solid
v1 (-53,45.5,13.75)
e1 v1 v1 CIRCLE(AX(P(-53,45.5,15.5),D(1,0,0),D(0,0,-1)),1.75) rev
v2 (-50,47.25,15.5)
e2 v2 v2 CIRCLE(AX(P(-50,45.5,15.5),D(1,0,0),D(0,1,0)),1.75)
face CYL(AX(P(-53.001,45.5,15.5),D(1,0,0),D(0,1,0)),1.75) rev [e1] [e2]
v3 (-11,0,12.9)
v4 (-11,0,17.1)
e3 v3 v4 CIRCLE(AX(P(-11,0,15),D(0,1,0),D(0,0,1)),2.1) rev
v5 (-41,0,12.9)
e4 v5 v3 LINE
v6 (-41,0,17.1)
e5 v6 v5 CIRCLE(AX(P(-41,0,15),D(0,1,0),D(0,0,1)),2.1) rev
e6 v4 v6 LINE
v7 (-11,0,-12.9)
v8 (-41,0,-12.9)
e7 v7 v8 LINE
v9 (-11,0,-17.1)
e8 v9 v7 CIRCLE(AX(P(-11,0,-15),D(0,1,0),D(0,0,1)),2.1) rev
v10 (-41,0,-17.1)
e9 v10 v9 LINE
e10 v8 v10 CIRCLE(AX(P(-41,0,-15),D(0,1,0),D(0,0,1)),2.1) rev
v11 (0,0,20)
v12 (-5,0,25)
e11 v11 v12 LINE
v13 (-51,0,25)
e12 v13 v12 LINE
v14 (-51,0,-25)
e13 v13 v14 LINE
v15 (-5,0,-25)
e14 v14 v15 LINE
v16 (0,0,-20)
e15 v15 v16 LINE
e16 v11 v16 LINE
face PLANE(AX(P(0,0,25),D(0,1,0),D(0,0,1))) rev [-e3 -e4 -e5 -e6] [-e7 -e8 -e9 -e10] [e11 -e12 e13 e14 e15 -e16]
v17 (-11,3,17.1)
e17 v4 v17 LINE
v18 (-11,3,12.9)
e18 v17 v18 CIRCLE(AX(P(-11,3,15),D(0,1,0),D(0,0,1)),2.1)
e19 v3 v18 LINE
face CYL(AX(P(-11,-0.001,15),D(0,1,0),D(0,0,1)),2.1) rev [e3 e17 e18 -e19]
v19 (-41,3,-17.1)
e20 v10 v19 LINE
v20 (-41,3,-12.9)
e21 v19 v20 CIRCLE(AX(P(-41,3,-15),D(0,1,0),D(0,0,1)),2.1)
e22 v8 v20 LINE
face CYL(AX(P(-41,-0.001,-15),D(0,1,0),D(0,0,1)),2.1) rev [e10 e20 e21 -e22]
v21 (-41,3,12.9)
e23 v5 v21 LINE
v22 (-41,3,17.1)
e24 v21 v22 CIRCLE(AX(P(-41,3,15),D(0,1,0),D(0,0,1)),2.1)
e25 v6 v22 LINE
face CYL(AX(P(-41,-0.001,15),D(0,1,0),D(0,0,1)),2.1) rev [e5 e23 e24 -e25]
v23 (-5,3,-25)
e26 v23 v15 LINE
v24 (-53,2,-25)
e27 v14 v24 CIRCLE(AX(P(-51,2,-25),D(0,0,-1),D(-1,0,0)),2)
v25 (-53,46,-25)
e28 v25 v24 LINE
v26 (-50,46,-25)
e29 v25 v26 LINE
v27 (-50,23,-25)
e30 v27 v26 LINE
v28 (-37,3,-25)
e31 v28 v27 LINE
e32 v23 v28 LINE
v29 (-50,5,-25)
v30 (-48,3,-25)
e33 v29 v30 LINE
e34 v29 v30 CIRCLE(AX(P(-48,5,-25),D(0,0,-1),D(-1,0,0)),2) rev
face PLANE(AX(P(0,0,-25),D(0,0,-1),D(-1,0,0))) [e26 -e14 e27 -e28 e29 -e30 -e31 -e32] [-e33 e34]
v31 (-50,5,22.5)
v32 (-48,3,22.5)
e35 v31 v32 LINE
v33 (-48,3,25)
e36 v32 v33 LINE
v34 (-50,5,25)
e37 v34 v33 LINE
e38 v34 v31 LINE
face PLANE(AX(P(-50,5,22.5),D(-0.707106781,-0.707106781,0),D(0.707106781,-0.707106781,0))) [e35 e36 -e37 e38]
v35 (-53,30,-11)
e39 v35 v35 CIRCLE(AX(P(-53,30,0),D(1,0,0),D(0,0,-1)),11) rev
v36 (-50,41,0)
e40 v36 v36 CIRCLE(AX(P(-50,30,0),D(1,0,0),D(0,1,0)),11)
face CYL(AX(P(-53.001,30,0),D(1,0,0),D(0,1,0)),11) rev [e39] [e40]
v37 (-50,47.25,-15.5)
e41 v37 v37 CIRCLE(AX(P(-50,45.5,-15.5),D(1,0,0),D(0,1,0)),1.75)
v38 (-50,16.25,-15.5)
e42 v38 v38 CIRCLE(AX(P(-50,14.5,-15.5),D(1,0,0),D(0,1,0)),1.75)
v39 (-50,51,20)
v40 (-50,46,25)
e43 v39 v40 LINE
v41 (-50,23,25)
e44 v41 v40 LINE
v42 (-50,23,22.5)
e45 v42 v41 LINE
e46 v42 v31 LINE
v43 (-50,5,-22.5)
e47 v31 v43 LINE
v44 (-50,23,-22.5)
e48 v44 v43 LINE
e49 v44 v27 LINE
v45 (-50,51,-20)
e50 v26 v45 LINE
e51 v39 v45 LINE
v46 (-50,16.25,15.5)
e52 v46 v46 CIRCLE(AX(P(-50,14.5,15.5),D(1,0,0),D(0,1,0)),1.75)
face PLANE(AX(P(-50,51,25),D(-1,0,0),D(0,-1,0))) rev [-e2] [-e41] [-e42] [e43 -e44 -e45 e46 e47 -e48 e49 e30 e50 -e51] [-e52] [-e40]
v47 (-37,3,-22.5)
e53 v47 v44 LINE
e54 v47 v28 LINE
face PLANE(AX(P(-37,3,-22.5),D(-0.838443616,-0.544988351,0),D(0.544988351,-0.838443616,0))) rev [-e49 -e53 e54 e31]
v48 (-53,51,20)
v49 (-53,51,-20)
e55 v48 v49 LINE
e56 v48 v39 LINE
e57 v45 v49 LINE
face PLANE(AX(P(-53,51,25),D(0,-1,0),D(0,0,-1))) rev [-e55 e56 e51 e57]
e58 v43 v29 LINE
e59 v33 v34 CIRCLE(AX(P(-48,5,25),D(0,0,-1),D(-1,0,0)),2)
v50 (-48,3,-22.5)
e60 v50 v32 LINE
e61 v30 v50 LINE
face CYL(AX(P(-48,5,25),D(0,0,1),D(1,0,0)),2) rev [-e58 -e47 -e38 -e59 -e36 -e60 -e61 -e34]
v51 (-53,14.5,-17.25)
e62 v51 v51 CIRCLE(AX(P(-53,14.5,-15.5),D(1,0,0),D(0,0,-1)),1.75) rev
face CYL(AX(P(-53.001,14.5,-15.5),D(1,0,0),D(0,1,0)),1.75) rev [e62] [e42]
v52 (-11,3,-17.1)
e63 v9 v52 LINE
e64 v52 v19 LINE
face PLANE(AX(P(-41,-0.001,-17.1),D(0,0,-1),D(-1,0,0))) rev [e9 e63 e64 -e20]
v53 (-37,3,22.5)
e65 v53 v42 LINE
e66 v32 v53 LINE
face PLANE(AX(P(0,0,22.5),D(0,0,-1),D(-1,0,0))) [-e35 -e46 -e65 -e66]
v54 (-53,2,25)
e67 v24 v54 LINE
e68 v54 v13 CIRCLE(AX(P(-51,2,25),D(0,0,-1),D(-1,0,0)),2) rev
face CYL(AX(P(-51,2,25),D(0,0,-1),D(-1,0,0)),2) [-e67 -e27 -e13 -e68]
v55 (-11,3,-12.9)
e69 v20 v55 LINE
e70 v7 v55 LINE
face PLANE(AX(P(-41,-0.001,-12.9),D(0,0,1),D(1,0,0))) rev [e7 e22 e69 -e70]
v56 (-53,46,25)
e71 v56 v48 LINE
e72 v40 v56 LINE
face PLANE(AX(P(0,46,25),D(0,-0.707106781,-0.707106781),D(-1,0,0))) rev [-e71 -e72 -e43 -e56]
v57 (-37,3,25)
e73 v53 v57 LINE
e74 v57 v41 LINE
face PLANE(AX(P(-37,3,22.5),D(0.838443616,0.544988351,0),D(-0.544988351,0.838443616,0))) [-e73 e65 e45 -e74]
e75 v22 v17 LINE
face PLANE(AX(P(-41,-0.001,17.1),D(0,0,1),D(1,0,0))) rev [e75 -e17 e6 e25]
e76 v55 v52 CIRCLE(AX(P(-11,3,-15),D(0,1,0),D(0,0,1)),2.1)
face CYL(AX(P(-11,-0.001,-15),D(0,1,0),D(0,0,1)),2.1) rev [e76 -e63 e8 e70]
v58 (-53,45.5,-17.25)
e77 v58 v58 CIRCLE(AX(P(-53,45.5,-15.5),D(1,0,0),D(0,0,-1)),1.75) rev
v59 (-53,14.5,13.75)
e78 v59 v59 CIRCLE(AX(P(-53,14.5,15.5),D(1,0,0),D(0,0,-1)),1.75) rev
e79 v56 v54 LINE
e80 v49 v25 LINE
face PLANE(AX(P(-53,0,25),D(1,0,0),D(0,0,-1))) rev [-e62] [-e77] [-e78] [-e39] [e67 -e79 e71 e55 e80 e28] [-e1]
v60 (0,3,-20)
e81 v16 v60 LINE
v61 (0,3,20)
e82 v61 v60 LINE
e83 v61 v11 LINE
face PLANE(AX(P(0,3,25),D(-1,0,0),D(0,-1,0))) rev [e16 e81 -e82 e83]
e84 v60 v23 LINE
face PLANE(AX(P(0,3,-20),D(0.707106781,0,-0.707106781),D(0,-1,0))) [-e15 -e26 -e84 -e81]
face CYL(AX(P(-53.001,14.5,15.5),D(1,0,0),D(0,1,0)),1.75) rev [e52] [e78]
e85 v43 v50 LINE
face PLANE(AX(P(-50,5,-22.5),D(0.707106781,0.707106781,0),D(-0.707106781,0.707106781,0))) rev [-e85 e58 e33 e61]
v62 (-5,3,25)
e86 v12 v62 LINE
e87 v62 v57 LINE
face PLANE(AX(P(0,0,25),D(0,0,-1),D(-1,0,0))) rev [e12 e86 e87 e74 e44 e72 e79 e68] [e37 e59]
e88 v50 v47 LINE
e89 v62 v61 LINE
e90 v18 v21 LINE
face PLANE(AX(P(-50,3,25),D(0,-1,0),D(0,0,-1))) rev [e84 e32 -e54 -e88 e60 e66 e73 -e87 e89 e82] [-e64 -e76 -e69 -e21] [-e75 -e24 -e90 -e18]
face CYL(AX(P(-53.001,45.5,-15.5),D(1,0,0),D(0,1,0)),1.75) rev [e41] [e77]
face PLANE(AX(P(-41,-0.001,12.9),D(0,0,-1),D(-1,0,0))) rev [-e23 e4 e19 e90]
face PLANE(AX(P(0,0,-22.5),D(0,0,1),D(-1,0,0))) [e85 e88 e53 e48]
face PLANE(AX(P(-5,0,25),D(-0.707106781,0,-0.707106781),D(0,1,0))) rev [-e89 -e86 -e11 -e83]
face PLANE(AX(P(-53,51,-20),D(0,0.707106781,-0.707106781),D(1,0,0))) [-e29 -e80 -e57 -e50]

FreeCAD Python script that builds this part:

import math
import FreeCAD as App
import Part
import Sketcher

V = App.Vector
Q = App.Units.Quantity


def edges_at(feature, points):
    """Names of the edges that pass closest to the given points."""
    edges = feature.Shape.Edges
    near = lambda p: min(range(len(edges)), key=lambda i: edges[i].distToShape(Part.Vertex(*p))[0])
    return sorted({f"Edge{near(p) + 1}" for p in points})

doc = App.newDocument("Part")
body = doc.addObject("PartDesign::Body", "Body")

# Sketch on XY plane
sketch1 = doc.addObject("Sketcher::SketchObject", "Sketch")
body.addObject(sketch1)
sketch1.AttachmentSupport = (doc.XY_Plane, [""])
sketch1.MapMode = "FlatFace"
sketch1.addGeometry([
    Part.LineSegment(V(-53, 0, 0), V(0, 0, 0)),  # 0
    Part.LineSegment(V(0, 0, 0), V(0, 3, 0)),  # 1
    Part.LineSegment(V(0, 3, 0), V(-50, 3, 0)),  # 2
    Part.LineSegment(V(-50, 3, 0), V(-50, 51, 0)),  # 3
    Part.LineSegment(V(-50, 51, 0), V(-53, 51, 0)),  # 4
    Part.LineSegment(V(-53, 51, 0), V(-53, 0, 0)),  # 5
], False)
sketch1.addConstraint([
    Sketcher.Constraint("Coincident", 0, 2, 1, 1),
    Sketcher.Constraint("Coincident", 1, 2, 2, 1),
    Sketcher.Constraint("Coincident", 2, 2, 3, 1),
    Sketcher.Constraint("Coincident", 3, 2, 4, 1),
    Sketcher.Constraint("Coincident", 4, 2, 5, 1),
    Sketcher.Constraint("Coincident", 5, 2, 0, 1),
    Sketcher.Constraint("Horizontal", 0),
    Sketcher.Constraint("Vertical", 1),
    Sketcher.Constraint("Horizontal", 2),
    Sketcher.Constraint("Vertical", 3),
    Sketcher.Constraint("Horizontal", 4),
    Sketcher.Constraint("Vertical", 5),
    Sketcher.Constraint("Coincident", 0, 2, -1, 1),
    Sketcher.Constraint("Equal", 4, 1),
    Sketcher.Constraint("DistanceX", 0, 1, 0, 2, Q("53 mm")),
    Sketcher.Constraint("DistanceX", 2, 2, 2, 1, Q("50 mm")),
    Sketcher.Constraint("DistanceY", 3, 1, 3, 2, Q("48 mm")),
])
pad1 = doc.addObject("PartDesign::Pad", "Pad")
body.addObject(pad1)
pad1.Profile = sketch1
pad1.Length = 50
pad1.Midplane = True

# Sketch on YZ plane
sketch2 = doc.addObject("Sketcher::SketchObject", "Sketch001")
body.addObject(sketch2)
sketch2.AttachmentSupport = (doc.YZ_Plane, [""])
sketch2.MapMode = "FlatFace"
sketch2.AttachmentOffset = App.Placement(V(0, 0, -50), App.Rotation())
sketch2.addGeometry(Part.Circle(V(30, 0, 0), V(0, 0, 1), 11), False)
sketch2.addConstraint([
    Sketcher.Constraint("PointOnObject", 0, 3, -1),
    Sketcher.Constraint("Diameter", 0, Q("22 mm")),
    Sketcher.Constraint("DistanceX", -1, 1, 0, 3, Q("30 mm")),
])
pocket1 = doc.addObject("PartDesign::Pocket", "Pocket")
body.addObject(pocket1)
pocket1.Profile = sketch2
pocket1.Type = "UpToFirst"

# Sketch on YZ plane
sketch3 = doc.addObject("Sketcher::SketchObject", "Sketch002")
body.addObject(sketch3)
sketch3.AttachmentSupport = (doc.YZ_Plane, [""])
sketch3.MapMode = "FlatFace"
sketch3.AttachmentOffset = App.Placement(V(0, 0, -50), App.Rotation())
sketch3.addGeometry(Part.Circle(V(45.5, 15.5, 0), V(0, 0, 1), 1.75), False)
sketch3.addConstraint([
    Sketcher.Constraint("Diameter", 0, Q("3.5 mm")),
    Sketcher.Constraint("DistanceX", -1, 1, 0, 3, Q("45.5 mm")),
    Sketcher.Constraint("DistanceY", -1, 1, 0, 3, Q("15.5 mm")),
])
pocket2 = doc.addObject("PartDesign::Pocket", "Pocket001")
body.addObject(pocket2)
pocket2.Profile = sketch3
pocket2.Type = "UpToFirst"

# Sketch on YZ plane
sketch4 = doc.addObject("Sketcher::SketchObject", "Sketch003")
body.addObject(sketch4)
sketch4.AttachmentSupport = (doc.YZ_Plane, [""])
sketch4.MapMode = "FlatFace"
sketch4.AttachmentOffset = App.Placement(V(0, 0, -50), App.Rotation())
sketch4.addGeometry(Part.Circle(V(45.5, -15.5, 0), V(0, 0, 1), 1.75), False)
sketch4.addConstraint([
    Sketcher.Constraint("Diameter", 0, Q("3.5 mm")),
    Sketcher.Constraint("DistanceX", -1, 1, 0, 3, Q("45.5 mm")),
    Sketcher.Constraint("DistanceY", 0, 3, -1, 1, Q("15.5 mm")),
])
pocket3 = doc.addObject("PartDesign::Pocket", "Pocket002")
body.addObject(pocket3)
pocket3.Profile = sketch4
pocket3.Type = "UpToFirst"

# Sketch on YZ plane
sketch5 = doc.addObject("Sketcher::SketchObject", "Sketch004")
body.addObject(sketch5)
sketch5.AttachmentSupport = (doc.YZ_Plane, [""])
sketch5.MapMode = "FlatFace"
sketch5.AttachmentOffset = App.Placement(V(0, 0, -50), App.Rotation())
sketch5.addGeometry(Part.Circle(V(14.5, 15.5, 0), V(0, 0, 1), 1.75), False)
sketch5.addConstraint([
    Sketcher.Constraint("Diameter", 0, Q("3.5 mm")),
    Sketcher.Constraint("DistanceX", -1, 1, 0, 3, Q("14.5 mm")),
    Sketcher.Constraint("DistanceY", -1, 1, 0, 3, Q("15.5 mm")),
])
pocket4 = doc.addObject("PartDesign::Pocket", "Pocket003")
body.addObject(pocket4)
pocket4.Profile = sketch5
pocket4.Type = "UpToFirst"

# Sketch on YZ plane
sketch6 = doc.addObject("Sketcher::SketchObject", "Sketch005")
body.addObject(sketch6)
sketch6.AttachmentSupport = (doc.YZ_Plane, [""])
sketch6.MapMode = "FlatFace"
sketch6.AttachmentOffset = App.Placement(V(0, 0, -50), App.Rotation())
sketch6.addGeometry(Part.Circle(V(14.5, -15.5, 0), V(0, 0, 1), 1.75), False)
sketch6.addConstraint([
    Sketcher.Constraint("Diameter", 0, Q("3.5 mm")),
    Sketcher.Constraint("DistanceX", -1, 1, 0, 3, Q("14.5 mm")),
    Sketcher.Constraint("DistanceY", 0, 3, -1, 1, Q("15.5 mm")),
])
pocket5 = doc.addObject("PartDesign::Pocket", "Pocket004")
body.addObject(pocket5)
pocket5.Profile = sketch6
pocket5.Type = "UpToFirst"

# Sketch on XZ plane
sketch7 = doc.addObject("Sketcher::SketchObject", "Sketch006")
body.addObject(sketch7)
sketch7.AttachmentSupport = (doc.XZ_Plane, [""])
sketch7.MapMode = "FlatFace"
sketch7.AttachmentOffset = App.Placement(V(0, 0, -3), App.Rotation())
sketch7.addGeometry([
    Part.LineSegment(V(-11, -17.1, 0), V(-41, -17.1, 0)),
    Part.ArcOfCircle(Part.Circle(V(-41, -15, 0), V(0, 0, 1), 2.1), math.radians(90), math.radians(270)),
    Part.LineSegment(V(-41, -12.9, 0), V(-11, -12.9, 0)),
    Part.ArcOfCircle(Part.Circle(V(-11, -15, 0), V(0, 0, 1), 2.1), math.radians(-90), math.radians(90)),
], False)
sketch7.addConstraint([
    Sketcher.Constraint("Tangent", 0, 2, 1, 2),
    Sketcher.Constraint("Tangent", 1, 1, 2, 1),
    Sketcher.Constraint("Tangent", 2, 2, 3, 2),
    Sketcher.Constraint("Tangent", 3, 1, 0, 1),
    Sketcher.Constraint("Horizontal", 0),
    Sketcher.Constraint("Horizontal", 2),
    Sketcher.Constraint("Radius", 1, Q("2.1 mm")),
    Sketcher.Constraint("DistanceX", 0, 2, 0, 1, Q("30 mm")),
    Sketcher.Constraint("DistanceX", 1, 3, -1, 1, Q("41 mm")),
    Sketcher.Constraint("DistanceY", 1, 3, -1, 1, Q("15 mm")),
])
pocket6 = doc.addObject("PartDesign::Pocket", "Pocket005")
body.addObject(pocket6)
pocket6.Profile = sketch7
pocket6.Type = "UpToFirst"
pocket6.Reversed = True

# Sketch on XZ plane
sketch8 = doc.addObject("Sketcher::SketchObject", "Sketch007")
body.addObject(sketch8)
sketch8.AttachmentSupport = (doc.XZ_Plane, [""])
sketch8.MapMode = "FlatFace"
sketch8.AttachmentOffset = App.Placement(V(0, 0, -3), App.Rotation())
sketch8.addGeometry([
    Part.LineSegment(V(-11, 12.9, 0), V(-41, 12.9, 0)),
    Part.ArcOfCircle(Part.Circle(V(-41, 15, 0), V(0, 0, 1), 2.1), math.radians(90), math.radians(270)),
    Part.LineSegment(V(-41, 17.1, 0), V(-11, 17.1, 0)),
    Part.ArcOfCircle(Part.Circle(V(-11, 15, 0), V(0, 0, 1), 2.1), math.radians(-90), math.radians(90)),
], False)
sketch8.addConstraint([
    Sketcher.Constraint("Tangent", 0, 2, 1, 2),
    Sketcher.Constraint("Tangent", 1, 1, 2, 1),
    Sketcher.Constraint("Tangent", 2, 2, 3, 2),
    Sketcher.Constraint("Tangent", 3, 1, 0, 1),
    Sketcher.Constraint("Horizontal", 0),
    Sketcher.Constraint("Horizontal", 2),
    Sketcher.Constraint("Radius", 1, Q("2.1 mm")),
    Sketcher.Constraint("DistanceX", 0, 2, 0, 1, Q("30 mm")),
    Sketcher.Constraint("DistanceX", 1, 3, -1, 1, Q("41 mm")),
    Sketcher.Constraint("DistanceY", -1, 1, 1, 3, Q("15 mm")),
])
pocket7 = doc.addObject("PartDesign::Pocket", "Pocket006")
body.addObject(pocket7)
pocket7.Profile = sketch8
pocket7.Type = "UpToFirst"
pocket7.Reversed = True
doc.recompute()

chamfer = doc.addObject("PartDesign::Chamfer", "Chamfer")
body.addObject(chamfer)
chamfer.Base = (pocket7, edges_at(pocket7, [
    (-51.5, 51, 25),
    (0, 1.5, 25),
    (-51.5, 51, -25),
    (0, 1.5, -25),
]))
chamfer.Size = 5
doc.recompute()

fillet = doc.addObject("PartDesign::Fillet", "Fillet")
body.addObject(fillet)
fillet.Base = (chamfer, edges_at(chamfer, [(-53, 0, 0), (-50, 3, 0)]))
fillet.Radius = 2

# Sketch on XY plane
sketch9 = doc.addObject("Sketcher::SketchObject", "Sketch008")
body.addObject(sketch9)
sketch9.AttachmentSupport = (doc.XY_Plane, [""])
sketch9.MapMode = "FlatFace"
sketch9.AttachmentOffset = App.Placement(V(0, 0, 25), App.Rotation())
sketch9.addGeometry([
    Part.LineSegment(V(-50, 23, 0), V(-50, 5, 0)),
    Part.LineSegment(V(-50, 5, 0), V(-48, 3, 0)),
    Part.LineSegment(V(-48, 3, 0), V(-37, 3, 0)),
    Part.LineSegment(V(-37, 3, 0), V(-50, 23, 0)),
], False)
sketch9.addConstraint([
    Sketcher.Constraint("Coincident", 0, 2, 1, 1),
    Sketcher.Constraint("Coincident", 1, 2, 2, 1),
    Sketcher.Constraint("Coincident", 2, 2, 3, 1),
    Sketcher.Constraint("Coincident", 3, 2, 0, 1),
    Sketcher.Constraint("Vertical", 0),
    Sketcher.Constraint("Horizontal", 2),
    Sketcher.Constraint("DistanceX", 2, 1, 2, 2, Q("11 mm")),
    Sketcher.Constraint("DistanceY", 0, 2, 0, 1, Q("18 mm")),
    Sketcher.Constraint("Angle", 1, Q("-45 deg")),
    Sketcher.Constraint("DistanceX", 0, 2, -1, 1, Q("50 mm")),
    Sketcher.Constraint("DistanceY", -1, 1, 0, 2, Q("5 mm")),
    Sketcher.Constraint("DistanceX", 1, 2, -1, 1, Q("48 mm")),
])
pad2 = doc.addObject("PartDesign::Pad", "Pad001")
body.addObject(pad2)
pad2.Profile = sketch9
pad2.Length = 2.5
pad2.Reversed = True
doc.recompute()

mirrored = doc.addObject("PartDesign::Mirrored", "Mirrored")
body.addObject(mirrored)
mirrored.Originals = [pad2]
mirrored.MirrorPlane = (doc.XY_Plane, [""])
body.Tip = mirrored

doc.recompute()
